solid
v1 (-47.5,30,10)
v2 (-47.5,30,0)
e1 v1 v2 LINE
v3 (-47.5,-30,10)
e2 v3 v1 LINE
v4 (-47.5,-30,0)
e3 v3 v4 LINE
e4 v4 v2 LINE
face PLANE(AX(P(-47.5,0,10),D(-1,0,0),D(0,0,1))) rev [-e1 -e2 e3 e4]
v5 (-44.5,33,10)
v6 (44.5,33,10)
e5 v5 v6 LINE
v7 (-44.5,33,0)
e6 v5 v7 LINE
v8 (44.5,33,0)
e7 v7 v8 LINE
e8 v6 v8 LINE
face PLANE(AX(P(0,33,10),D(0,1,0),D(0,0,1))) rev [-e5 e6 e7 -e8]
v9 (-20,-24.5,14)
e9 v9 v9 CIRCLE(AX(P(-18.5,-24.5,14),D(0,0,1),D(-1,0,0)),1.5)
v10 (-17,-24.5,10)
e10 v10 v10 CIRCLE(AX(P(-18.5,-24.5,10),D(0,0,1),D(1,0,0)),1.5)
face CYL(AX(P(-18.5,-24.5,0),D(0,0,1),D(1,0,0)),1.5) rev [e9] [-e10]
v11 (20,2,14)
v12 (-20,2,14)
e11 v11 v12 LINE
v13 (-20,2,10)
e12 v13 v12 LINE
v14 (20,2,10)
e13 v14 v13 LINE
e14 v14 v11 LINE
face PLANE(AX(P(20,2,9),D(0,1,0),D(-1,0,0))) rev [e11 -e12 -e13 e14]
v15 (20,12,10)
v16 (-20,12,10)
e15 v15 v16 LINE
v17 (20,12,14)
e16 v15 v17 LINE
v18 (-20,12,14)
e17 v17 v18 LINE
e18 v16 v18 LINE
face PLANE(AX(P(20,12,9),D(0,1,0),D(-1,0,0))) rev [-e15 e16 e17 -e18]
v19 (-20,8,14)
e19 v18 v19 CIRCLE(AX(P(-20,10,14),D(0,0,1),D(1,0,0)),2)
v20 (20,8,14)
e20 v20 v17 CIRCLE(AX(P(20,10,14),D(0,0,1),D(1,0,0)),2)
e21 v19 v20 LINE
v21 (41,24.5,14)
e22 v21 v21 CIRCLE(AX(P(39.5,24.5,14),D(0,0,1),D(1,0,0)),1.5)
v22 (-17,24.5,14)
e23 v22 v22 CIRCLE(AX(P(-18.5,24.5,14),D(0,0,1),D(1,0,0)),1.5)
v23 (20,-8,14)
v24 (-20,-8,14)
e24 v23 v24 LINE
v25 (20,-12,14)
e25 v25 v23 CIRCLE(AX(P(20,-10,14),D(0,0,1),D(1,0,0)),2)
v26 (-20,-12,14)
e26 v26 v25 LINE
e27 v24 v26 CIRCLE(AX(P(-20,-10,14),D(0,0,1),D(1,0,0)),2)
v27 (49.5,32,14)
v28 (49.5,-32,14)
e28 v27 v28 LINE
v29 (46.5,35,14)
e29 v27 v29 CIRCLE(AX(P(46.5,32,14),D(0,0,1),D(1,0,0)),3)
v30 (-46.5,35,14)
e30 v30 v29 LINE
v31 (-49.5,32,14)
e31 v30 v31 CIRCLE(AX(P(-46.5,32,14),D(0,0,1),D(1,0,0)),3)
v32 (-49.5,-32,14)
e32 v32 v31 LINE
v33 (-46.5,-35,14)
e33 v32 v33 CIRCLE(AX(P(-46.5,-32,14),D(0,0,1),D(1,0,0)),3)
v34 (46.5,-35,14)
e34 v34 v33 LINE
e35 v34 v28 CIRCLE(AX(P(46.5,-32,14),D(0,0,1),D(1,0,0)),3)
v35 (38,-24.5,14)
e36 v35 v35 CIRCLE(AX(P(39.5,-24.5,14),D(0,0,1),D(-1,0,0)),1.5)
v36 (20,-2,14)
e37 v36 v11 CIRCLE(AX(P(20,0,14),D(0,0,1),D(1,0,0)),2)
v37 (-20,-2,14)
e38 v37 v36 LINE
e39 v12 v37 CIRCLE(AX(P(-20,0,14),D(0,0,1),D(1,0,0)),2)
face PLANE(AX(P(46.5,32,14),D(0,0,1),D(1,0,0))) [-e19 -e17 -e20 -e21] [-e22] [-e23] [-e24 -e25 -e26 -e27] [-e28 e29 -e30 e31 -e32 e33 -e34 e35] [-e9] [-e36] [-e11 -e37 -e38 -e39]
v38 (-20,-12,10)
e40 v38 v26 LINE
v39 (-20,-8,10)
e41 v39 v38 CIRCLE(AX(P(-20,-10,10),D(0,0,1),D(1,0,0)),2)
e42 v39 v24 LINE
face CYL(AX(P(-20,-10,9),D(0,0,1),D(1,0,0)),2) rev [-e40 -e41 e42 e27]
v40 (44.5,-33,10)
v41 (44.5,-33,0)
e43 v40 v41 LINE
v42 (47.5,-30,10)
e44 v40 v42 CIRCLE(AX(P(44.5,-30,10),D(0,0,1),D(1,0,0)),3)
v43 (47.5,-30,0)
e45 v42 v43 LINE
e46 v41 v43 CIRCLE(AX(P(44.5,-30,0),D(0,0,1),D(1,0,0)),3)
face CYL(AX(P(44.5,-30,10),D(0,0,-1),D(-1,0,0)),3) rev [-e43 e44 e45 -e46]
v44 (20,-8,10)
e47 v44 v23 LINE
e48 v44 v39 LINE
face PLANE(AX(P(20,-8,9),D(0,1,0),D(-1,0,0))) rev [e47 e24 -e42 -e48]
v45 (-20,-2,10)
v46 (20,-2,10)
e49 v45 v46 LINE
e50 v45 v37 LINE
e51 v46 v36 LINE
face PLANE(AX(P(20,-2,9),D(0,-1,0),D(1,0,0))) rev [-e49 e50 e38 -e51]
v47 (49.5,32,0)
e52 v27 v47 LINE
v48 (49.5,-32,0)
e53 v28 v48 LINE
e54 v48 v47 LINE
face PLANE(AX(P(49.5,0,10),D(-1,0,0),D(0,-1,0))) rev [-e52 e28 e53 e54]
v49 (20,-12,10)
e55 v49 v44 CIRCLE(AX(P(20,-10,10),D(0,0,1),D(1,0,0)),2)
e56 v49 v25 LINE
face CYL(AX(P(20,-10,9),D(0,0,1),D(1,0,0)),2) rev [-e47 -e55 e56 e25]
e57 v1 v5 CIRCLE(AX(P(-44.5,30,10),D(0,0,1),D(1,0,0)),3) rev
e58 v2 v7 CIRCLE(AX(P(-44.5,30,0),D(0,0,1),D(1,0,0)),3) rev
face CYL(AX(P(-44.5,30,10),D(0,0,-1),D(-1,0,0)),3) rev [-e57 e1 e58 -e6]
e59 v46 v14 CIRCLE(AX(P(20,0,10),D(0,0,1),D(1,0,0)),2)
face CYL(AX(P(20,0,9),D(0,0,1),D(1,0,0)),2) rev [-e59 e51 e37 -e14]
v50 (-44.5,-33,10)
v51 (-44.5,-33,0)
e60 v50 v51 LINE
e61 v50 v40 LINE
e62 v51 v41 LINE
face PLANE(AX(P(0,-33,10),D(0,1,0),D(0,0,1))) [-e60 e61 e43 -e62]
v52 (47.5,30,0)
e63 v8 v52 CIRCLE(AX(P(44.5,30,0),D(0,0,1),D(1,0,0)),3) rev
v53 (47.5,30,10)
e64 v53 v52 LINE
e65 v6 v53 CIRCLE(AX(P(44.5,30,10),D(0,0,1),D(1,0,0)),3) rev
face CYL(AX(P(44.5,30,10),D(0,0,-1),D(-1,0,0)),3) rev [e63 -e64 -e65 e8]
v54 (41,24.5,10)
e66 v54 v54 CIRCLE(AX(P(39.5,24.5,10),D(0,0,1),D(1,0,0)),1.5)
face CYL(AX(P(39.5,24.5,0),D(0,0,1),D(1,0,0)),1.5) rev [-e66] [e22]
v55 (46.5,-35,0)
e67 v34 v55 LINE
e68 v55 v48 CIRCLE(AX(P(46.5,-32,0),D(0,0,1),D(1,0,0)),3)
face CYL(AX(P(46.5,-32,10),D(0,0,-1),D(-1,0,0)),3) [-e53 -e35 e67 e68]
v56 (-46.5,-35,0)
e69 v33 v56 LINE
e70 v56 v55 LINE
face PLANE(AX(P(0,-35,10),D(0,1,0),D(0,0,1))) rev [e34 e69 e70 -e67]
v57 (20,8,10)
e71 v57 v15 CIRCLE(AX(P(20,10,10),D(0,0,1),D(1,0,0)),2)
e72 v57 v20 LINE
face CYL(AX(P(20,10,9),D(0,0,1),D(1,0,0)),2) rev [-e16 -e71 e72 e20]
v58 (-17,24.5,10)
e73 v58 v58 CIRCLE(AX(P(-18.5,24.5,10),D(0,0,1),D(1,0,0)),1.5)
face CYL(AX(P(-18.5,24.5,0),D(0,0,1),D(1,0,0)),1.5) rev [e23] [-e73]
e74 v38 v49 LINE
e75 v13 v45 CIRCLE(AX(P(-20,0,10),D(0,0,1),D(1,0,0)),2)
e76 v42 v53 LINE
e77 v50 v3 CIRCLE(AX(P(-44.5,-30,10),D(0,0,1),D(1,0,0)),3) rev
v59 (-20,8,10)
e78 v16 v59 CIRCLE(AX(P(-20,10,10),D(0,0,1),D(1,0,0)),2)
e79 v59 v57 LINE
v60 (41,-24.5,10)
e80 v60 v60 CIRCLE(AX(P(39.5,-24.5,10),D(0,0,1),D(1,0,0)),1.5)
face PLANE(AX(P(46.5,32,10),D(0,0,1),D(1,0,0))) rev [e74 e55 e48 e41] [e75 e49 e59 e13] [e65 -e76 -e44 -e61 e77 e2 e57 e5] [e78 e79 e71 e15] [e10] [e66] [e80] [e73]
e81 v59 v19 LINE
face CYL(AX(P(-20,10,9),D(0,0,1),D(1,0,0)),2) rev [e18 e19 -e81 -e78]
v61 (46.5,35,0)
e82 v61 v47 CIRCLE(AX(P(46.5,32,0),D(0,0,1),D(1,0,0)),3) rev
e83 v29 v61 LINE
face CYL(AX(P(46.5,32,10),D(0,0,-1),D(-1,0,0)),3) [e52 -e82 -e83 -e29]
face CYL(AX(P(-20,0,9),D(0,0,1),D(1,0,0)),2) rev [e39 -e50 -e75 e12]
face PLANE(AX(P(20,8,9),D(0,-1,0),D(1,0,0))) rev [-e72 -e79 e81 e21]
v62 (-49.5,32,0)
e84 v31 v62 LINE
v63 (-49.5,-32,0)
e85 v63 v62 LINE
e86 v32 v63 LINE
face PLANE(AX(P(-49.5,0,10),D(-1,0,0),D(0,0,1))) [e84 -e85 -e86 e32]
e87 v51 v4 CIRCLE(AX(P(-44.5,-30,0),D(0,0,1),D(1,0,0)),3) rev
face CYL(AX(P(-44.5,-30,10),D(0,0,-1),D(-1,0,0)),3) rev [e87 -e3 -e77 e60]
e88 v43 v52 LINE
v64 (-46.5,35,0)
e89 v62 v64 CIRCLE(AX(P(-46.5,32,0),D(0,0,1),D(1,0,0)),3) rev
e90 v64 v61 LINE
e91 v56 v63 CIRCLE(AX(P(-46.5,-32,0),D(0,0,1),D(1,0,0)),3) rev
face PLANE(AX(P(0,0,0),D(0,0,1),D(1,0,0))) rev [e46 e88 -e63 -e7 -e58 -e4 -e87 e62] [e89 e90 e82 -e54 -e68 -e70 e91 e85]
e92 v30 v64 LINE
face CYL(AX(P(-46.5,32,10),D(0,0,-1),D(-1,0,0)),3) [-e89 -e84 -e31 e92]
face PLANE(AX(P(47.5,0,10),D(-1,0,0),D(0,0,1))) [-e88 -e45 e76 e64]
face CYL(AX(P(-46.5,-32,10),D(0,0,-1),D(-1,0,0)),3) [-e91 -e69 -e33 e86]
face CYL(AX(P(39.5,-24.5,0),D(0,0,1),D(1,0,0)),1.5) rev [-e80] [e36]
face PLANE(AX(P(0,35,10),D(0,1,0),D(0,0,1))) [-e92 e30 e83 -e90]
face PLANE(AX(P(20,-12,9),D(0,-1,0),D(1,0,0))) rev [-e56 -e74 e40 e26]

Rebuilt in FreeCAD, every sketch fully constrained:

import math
import FreeCAD as App
import Part
import Sketcher

V = App.Vector
Q = App.Units.Quantity

doc = App.newDocument("Part")
body = doc.addObject("PartDesign::Body", "Body")

# Sketch on XY plane
sketch1 = doc.addObject("Sketcher::SketchObject", "Sketch")
body.addObject(sketch1)
sketch1.AttachmentSupport = (doc.XY_Plane, [""])
sketch1.MapMode = "FlatFace"
sketch1.addGeometry(Part.LineSegment(V(-46.5, -35, 0), V(46.5, -35, 0)), False)
sketch1.addGeometry(Part.ArcOfCircle(Part.Circle(V(46.5, -32, 0), V(0, 0, 1), 3), math.radians(-90), math.radians(0)), False)
sketch1.addGeometry(Part.LineSegment(V(49.5, -32, 0), V(49.5, 32, 0)), False)
sketch1.addGeometry(Part.ArcOfCircle(Part.Circle(V(46.5, 32, 0), V(0, 0, 1), 3), math.radians(0), math.radians(90)), False)
sketch1.addGeometry(Part.LineSegment(V(46.5, 35, 0), V(-46.5, 35, 0)), False)
sketch1.addGeometry(Part.ArcOfCircle(Part.Circle(V(-46.5, 32, 0), V(0, 0, 1), 3), math.radians(90), math.radians(180)), False)
sketch1.addGeometry(Part.LineSegment(V(-49.5, 32, 0), V(-49.5, -32, 0)), False)
sketch1.addGeometry(Part.ArcOfCircle(Part.Circle(V(-46.5, -32, 0), V(0, 0, 1), 3), math.radians(180), math.radians(270)), False)
sketch1.addGeometry(Part.ArcOfCircle(Part.Circle(V(44.5, -30, 0), V(0, 0, 1), 3), math.radians(-90), math.radians(0)), False)
sketch1.addGeometry(Part.LineSegment(V(44.5, -33, 0), V(-44.5, -33, 0)), False)
sketch1.addGeometry(Part.ArcOfCircle(Part.Circle(V(-44.5, -30, 0), V(0, 0, 1), 3), math.radians(180), math.radians(270)), False)
sketch1.addGeometry(Part.LineSegment(V(-47.5, -30, 0), V(-47.5, 30, 0)), False)
sketch1.addGeometry(Part.ArcOfCircle(Part.Circle(V(-44.5, 30, 0), V(0, 0, 1), 3), math.radians(90), math.radians(180)), False)
sketch1.addGeometry(Part.LineSegment(V(-44.5, 33, 0), V(44.5, 33, 0)), False)
sketch1.addGeometry(Part.ArcOfCircle(Part.Circle(V(44.5, 30, 0), V(0, 0, 1), 3), math.radians(0), math.radians(90)), False)
sketch1.addGeometry(Part.LineSegment(V(47.5, 30, 0), V(47.5, -30, 0)), False)
sketch1.addConstraint(Sketcher.Constraint("Tangent", 0, 2, 1, 1))
sketch1.addConstraint(Sketcher.Constraint("Tangent", 1, 2, 2, 1))
sketch1.addConstraint(Sketcher.Constraint("Tangent", 2, 2, 3, 1))
sketch1.addConstraint(Sketcher.Constraint("Tangent", 3, 2, 4, 1))
sketch1.addConstraint(Sketcher.Constraint("Tangent", 4, 2, 5, 1))
sketch1.addConstraint(Sketcher.Constraint("Tangent", 5, 2, 6, 1))
sketch1.addConstraint(Sketcher.Constraint("Tangent", 6, 2, 7, 1))
sketch1.addConstraint(Sketcher.Constraint("Tangent", 7, 2, 0, 1))
sketch1.addConstraint(Sketcher.Constraint("Tangent", 8, 1, 9, 1))
sketch1.addConstraint(Sketcher.Constraint("Tangent", 9, 2, 10, 2))
sketch1.addConstraint(Sketcher.Constraint("Tangent", 10, 1, 11, 1))
sketch1.addConstraint(Sketcher.Constraint("Tangent", 11, 2, 12, 2))
sketch1.addConstraint(Sketcher.Constraint("Tangent", 12, 1, 13, 1))
sketch1.addConstraint(Sketcher.Constraint("Tangent", 13, 2, 14, 2))
sketch1.addConstraint(Sketcher.Constraint("Tangent", 14, 1, 15, 1))
sketch1.addConstraint(Sketcher.Constraint("Tangent", 15, 2, 8, 2))
sketch1.addConstraint(Sketcher.Constraint("Horizontal", 0))
sketch1.addConstraint(Sketcher.Constraint("Vertical", 2))
sketch1.addConstraint(Sketcher.Constraint("Horizontal", 4))
sketch1.addConstraint(Sketcher.Constraint("Vertical", 6))
sketch1.addConstraint(Sketcher.Constraint("Horizontal", 9))
sketch1.addConstraint(Sketcher.Constraint("Vertical", 11))
sketch1.addConstraint(Sketcher.Constraint("Horizontal", 13))
sketch1.addConstraint(Sketcher.Constraint("Vertical", 15))
sketch1.addConstraint(Sketcher.Constraint("Equal", 1, 3))
sketch1.addConstraint(Sketcher.Constraint("Equal", 3, 5))
sketch1.addConstraint(Sketcher.Constraint("Equal", 5, 7))
sketch1.addConstraint(Sketcher.Constraint("Equal", 7, 8))
sketch1.addConstraint(Sketcher.Constraint("Equal", 8, 10))
sketch1.addConstraint(Sketcher.Constraint("Equal", 10, 12))
sketch1.addConstraint(Sketcher.Constraint("Equal", 12, 14))
sketch1.addConstraint(Sketcher.Constraint("Symmetric", 1, 3, 5, 3, -1, 1))
sketch1.addConstraint(Sketcher.Constraint("Symmetric", 8, 3, 12, 3, -1, 1))
sketch1.addConstraint(Sketcher.Constraint("Radius", 1, Q("3 mm")))
sketch1.addConstraint(Sketcher.Constraint("DistanceX", 0, 1, 0, 2, Q("93 mm")))
sketch1.addConstraint(Sketcher.Constraint("DistanceX", 9, 2, 9, 1, Q("89 mm")))
sketch1.addConstraint(Sketcher.Constraint("DistanceY", 2, 1, 2, 2, Q("64 mm")))
sketch1.addConstraint(Sketcher.Constraint("DistanceY", 11, 1, 11, 2, Q("60 mm")))
pad1 = doc.addObject("PartDesign::Pad", "Pad")
body.addObject(pad1)
pad1.Profile = sketch1
pad1.Length = 10

# Sketch on XY plane
sketch2 = doc.addObject("Sketcher::SketchObject", "Sketch001")
body.addObject(sketch2)
sketch2.AttachmentSupport = (doc.XY_Plane, [""])
sketch2.MapMode = "FlatFace"
sketch2.AttachmentOffset = App.Placement(V(0, 0, 10), App.Rotation())
sketch2.addGeometry(Part.LineSegment(V(-46.5, -35, 0), V(46.5, -35, 0)), False)
sketch2.addGeometry(Part.ArcOfCircle(Part.Circle(V(46.5, -32, 0), V(0, 0, 1), 3), math.radians(-90), math.radians(0)), False)
sketch2.addGeometry(Part.LineSegment(V(49.5, -32, 0), V(49.5, 32, 0)), False)
sketch2.addGeometry(Part.ArcOfCircle(Part.Circle(V(46.5, 32, 0), V(0, 0, 1), 3), math.radians(0), math.radians(90)), False)
sketch2.addGeometry(Part.LineSegment(V(46.5, 35, 0), V(-46.5, 35, 0)), False)
sketch2.addGeometry(Part.ArcOfCircle(Part.Circle(V(-46.5, 32, 0), V(0, 0, 1), 3), math.radians(90), math.radians(180)), False)
sketch2.addGeometry(Part.LineSegment(V(-49.5, 32, 0), V(-49.5, -32, 0)), False)
sketch2.addGeometry(Part.ArcOfCircle(Part.Circle(V(-46.5, -32, 0), V(0, 0, 1), 3), math.radians(180), math.radians(270)), False)
sketch2.addConstraint(Sketcher.Constraint("Tangent", 0, 2, 1, 1))
sketch2.addConstraint(Sketcher.Constraint("Tangent", 1, 2, 2, 1))
sketch2.addConstraint(Sketcher.Constraint("Tangent", 2, 2, 3, 1))
sketch2.addConstraint(Sketcher.Constraint("Tangent", 3, 2, 4, 1))
sketch2.addConstraint(Sketcher.Constraint("Tangent", 4, 2, 5, 1))
sketch2.addConstraint(Sketcher.Constraint("Tangent", 5, 2, 6, 1))
sketch2.addConstraint(Sketcher.Constraint("Tangent", 6, 2, 7, 1))
sketch2.addConstraint(Sketcher.Constraint("Tangent", 7, 2, 0, 1))
sketch2.addConstraint(Sketcher.Constraint("Horizontal", 0))
sketch2.addConstraint(Sketcher.Constraint("Vertical", 2))
sketch2.addConstraint(Sketcher.Constraint("Horizontal", 4))
sketch2.addConstraint(Sketcher.Constraint("Vertical", 6))
sketch2.addConstraint(Sketcher.Constraint("Equal", 1, 3))
sketch2.addConstraint(Sketcher.Constraint("Equal", 3, 5))
sketch2.addConstraint(Sketcher.Constraint("Equal", 5, 7))
sketch2.addConstraint(Sketcher.Constraint("Symmetric", 1, 3, 5, 3, -1, 1))
sketch2.addConstraint(Sketcher.Constraint("Radius", 1, Q("3 mm")))
sketch2.addConstraint(Sketcher.Constraint("DistanceX", 0, 1, 0, 2, Q("93 mm")))
sketch2.addConstraint(Sketcher.Constraint("DistanceY", 2, 1, 2, 2, Q("64 mm")))
pad2 = doc.addObject("PartDesign::Pad", "Pad001")
body.addObject(pad2)
pad2.Profile = sketch2
pad2.Length = 4

# Sketch on XY plane
sketch3 = doc.addObject("Sketcher::SketchObject", "Sketch002")
body.addObject(sketch3)
sketch3.AttachmentSupport = (doc.XY_Plane, [""])
sketch3.MapMode = "FlatFace"
sketch3.AttachmentOffset = App.Placement(V(0, 0, 14), App.Rotation())
sketch3.addGeometry(Part.Circle(V(39.5, 24.5, 0), V(0, 0, 1), 1.5), False)
sketch3.addGeometry(Part.Circle(V(-18.5, 24.5, 0), V(0, 0, 1), 1.5), False)
sketch3.addGeometry(Part.Circle(V(39.5, -24.5, 0), V(0, 0, 1), 1.5), False)
sketch3.addGeometry(Part.Circle(V(-18.5, -24.5, 0), V(0, 0, 1), 1.5), False)
sketch3.addConstraint(Sketcher.Constraint("Equal", 0, 1))
sketch3.addConstraint(Sketcher.Constraint("Equal", 1, 2))
sketch3.addConstraint(Sketcher.Constraint("Equal", 2, 3))
sketch3.addConstraint(Sketcher.Constraint("Symmetric", 0, 3, 2, 3, -1))
sketch3.addConstraint(Sketcher.Constraint("Symmetric", 1, 3, 3, 3, -1))
sketch3.addConstraint(Sketcher.Constraint("Horizontal", 0, 3, 1, 3))
sketch3.addConstraint(Sketcher.Constraint("Diameter", 0, Q("3 mm")))
sketch3.addConstraint(Sketcher.Constraint("DistanceX", 1, 3, 0, 3, Q("58 mm")))
sketch3.addConstraint(Sketcher.Constraint("DistanceY", 2, 3, 0, 3, Q("49 mm")))
sketch3.addConstraint(Sketcher.Constraint("DistanceX", -1, 1, 0, 3, Q("39.5 mm")))
pocket1 = doc.addObject("PartDesign::Pocket", "Pocket")
body.addObject(pocket1)
pocket1.Profile = sketch3
pocket1.Type = "ThroughAll"

# Sketch on XY plane
sketch4 = doc.addObject("Sketcher::SketchObject", "Sketch003")
body.addObject(sketch4)
sketch4.AttachmentSupport = (doc.XY_Plane, [""])
sketch4.MapMode = "FlatFace"
sketch4.AttachmentOffset = App.Placement(V(0, 0, 14), App.Rotation())
sketch4.addGeometry(Part.LineSegment(V(-20, -2, 0), V(20, -2, 0)), False)
sketch4.addGeometry(Part.ArcOfCircle(Part.Circle(V(20, 0, 0), V(0, 0, 1), 2), math.radians(-90), math.radians(90)), False)
sketch4.addGeometry(Part.LineSegment(V(20, 2, 0), V(-20, 2, 0)), False)
sketch4.addGeometry(Part.ArcOfCircle(Part.Circle(V(-20, 0, 0), V(0, 0, 1), 2), math.radians(90), math.radians(270)), False)
sketch4.addGeometry(Part.LineSegment(V(-20, -12, 0), V(20, -12, 0)), False)
sketch4.addGeometry(Part.ArcOfCircle(Part.Circle(V(20, -10, 0), V(0, 0, 1), 2), math.radians(-90), math.radians(90)), False)
sketch4.addGeometry(Part.LineSegment(V(20, -8, 0), V(-20, -8, 0)), False)
sketch4.addGeometry(Part.ArcOfCircle(Part.Circle(V(-20, -10, 0), V(0, 0, 1), 2), math.radians(90), math.radians(270)), False)
sketch4.addGeometry(Part.LineSegment(V(-20, 8, 0), V(20, 8, 0)), False)
sketch4.addGeometry(Part.ArcOfCircle(Part.Circle(V(20, 10, 0), V(0, 0, 1), 2), math.radians(-90), math.radians(90)), False)
sketch4.addGeometry(Part.LineSegment(V(20, 12, 0), V(-20, 12, 0)), False)
sketch4.addGeometry(Part.ArcOfCircle(Part.Circle(V(-20, 10, 0), V(0, 0, 1), 2), math.radians(90), math.radians(270)), False)
sketch4.addConstraint(Sketcher.Constraint("Tangent", 0, 2, 1, 1))
sketch4.addConstraint(Sketcher.Constraint("Tangent", 1, 2, 2, 1))
sketch4.addConstraint(Sketcher.Constraint("Tangent", 2, 2, 3, 1))
sketch4.addConstraint(Sketcher.Constraint("Tangent", 3, 2, 0, 1))
sketch4.addConstraint(Sketcher.Constraint("Tangent", 4, 2, 5, 1))
sketch4.addConstraint(Sketcher.Constraint("Tangent", 5, 2, 6, 1))
sketch4.addConstraint(Sketcher.Constraint("Tangent", 6, 2, 7, 1))
sketch4.addConstraint(Sketcher.Constraint("Tangent", 7, 2, 4, 1))
sketch4.addConstraint(Sketcher.Constraint("Tangent", 8, 2, 9, 1))
sketch4.addConstraint(Sketcher.Constraint("Tangent", 9, 2, 10, 1))
sketch4.addConstraint(Sketcher.Constraint("Tangent", 10, 2, 11, 1))
sketch4.addConstraint(Sketcher.Constraint("Tangent", 11, 2, 8, 1))
sketch4.addConstraint(Sketcher.Constraint("Horizontal", 0))
sketch4.addConstraint(Sketcher.Constraint("Horizontal", 2))
sketch4.addConstraint(Sketcher.Constraint("Horizontal", 4))
sketch4.addConstraint(Sketcher.Constraint("Horizontal", 6))
sketch4.addConstraint(Sketcher.Constraint("Horizontal", 8))
sketch4.addConstraint(Sketcher.Constraint("Horizontal", 10))
sketch4.addConstraint(Sketcher.Constraint("Equal", 3, 5))
sketch4.addConstraint(Sketcher.Constraint("Equal", 7, 9))
sketch4.addConstraint(Sketcher.Constraint("Symmetric", 1, 3, 3, 3, -1, 1))
sketch4.addConstraint(Sketcher.Constraint("Symmetric", 7, 3, 9, 3, -1, 1))
sketch4.addConstraint(Sketcher.Constraint("Vertical", 1, 3, 5, 3))
sketch4.addConstraint(Sketcher.Constraint("Vertical", 3, 3, 7, 3))
sketch4.addConstraint(Sketcher.Constraint("Vertical", 7, 3, 11, 3))
sketch4.addConstraint(Sketcher.Constraint("Radius", 1, Q("2 mm")))
sketch4.addConstraint(Sketcher.Constraint("DistanceX", 0, 1, 0, 2, Q("40 mm")))
sketch4.addConstraint(Sketcher.Constraint("DistanceY", 5, 3, -1, 1, Q("10 mm")))
pocket2 = doc.addObject("PartDesign::Pocket", "Pocket001")
body.addObject(pocket2)
pocket2.Profile = sketch4
pocket2.Length = 5

doc.recompute()
